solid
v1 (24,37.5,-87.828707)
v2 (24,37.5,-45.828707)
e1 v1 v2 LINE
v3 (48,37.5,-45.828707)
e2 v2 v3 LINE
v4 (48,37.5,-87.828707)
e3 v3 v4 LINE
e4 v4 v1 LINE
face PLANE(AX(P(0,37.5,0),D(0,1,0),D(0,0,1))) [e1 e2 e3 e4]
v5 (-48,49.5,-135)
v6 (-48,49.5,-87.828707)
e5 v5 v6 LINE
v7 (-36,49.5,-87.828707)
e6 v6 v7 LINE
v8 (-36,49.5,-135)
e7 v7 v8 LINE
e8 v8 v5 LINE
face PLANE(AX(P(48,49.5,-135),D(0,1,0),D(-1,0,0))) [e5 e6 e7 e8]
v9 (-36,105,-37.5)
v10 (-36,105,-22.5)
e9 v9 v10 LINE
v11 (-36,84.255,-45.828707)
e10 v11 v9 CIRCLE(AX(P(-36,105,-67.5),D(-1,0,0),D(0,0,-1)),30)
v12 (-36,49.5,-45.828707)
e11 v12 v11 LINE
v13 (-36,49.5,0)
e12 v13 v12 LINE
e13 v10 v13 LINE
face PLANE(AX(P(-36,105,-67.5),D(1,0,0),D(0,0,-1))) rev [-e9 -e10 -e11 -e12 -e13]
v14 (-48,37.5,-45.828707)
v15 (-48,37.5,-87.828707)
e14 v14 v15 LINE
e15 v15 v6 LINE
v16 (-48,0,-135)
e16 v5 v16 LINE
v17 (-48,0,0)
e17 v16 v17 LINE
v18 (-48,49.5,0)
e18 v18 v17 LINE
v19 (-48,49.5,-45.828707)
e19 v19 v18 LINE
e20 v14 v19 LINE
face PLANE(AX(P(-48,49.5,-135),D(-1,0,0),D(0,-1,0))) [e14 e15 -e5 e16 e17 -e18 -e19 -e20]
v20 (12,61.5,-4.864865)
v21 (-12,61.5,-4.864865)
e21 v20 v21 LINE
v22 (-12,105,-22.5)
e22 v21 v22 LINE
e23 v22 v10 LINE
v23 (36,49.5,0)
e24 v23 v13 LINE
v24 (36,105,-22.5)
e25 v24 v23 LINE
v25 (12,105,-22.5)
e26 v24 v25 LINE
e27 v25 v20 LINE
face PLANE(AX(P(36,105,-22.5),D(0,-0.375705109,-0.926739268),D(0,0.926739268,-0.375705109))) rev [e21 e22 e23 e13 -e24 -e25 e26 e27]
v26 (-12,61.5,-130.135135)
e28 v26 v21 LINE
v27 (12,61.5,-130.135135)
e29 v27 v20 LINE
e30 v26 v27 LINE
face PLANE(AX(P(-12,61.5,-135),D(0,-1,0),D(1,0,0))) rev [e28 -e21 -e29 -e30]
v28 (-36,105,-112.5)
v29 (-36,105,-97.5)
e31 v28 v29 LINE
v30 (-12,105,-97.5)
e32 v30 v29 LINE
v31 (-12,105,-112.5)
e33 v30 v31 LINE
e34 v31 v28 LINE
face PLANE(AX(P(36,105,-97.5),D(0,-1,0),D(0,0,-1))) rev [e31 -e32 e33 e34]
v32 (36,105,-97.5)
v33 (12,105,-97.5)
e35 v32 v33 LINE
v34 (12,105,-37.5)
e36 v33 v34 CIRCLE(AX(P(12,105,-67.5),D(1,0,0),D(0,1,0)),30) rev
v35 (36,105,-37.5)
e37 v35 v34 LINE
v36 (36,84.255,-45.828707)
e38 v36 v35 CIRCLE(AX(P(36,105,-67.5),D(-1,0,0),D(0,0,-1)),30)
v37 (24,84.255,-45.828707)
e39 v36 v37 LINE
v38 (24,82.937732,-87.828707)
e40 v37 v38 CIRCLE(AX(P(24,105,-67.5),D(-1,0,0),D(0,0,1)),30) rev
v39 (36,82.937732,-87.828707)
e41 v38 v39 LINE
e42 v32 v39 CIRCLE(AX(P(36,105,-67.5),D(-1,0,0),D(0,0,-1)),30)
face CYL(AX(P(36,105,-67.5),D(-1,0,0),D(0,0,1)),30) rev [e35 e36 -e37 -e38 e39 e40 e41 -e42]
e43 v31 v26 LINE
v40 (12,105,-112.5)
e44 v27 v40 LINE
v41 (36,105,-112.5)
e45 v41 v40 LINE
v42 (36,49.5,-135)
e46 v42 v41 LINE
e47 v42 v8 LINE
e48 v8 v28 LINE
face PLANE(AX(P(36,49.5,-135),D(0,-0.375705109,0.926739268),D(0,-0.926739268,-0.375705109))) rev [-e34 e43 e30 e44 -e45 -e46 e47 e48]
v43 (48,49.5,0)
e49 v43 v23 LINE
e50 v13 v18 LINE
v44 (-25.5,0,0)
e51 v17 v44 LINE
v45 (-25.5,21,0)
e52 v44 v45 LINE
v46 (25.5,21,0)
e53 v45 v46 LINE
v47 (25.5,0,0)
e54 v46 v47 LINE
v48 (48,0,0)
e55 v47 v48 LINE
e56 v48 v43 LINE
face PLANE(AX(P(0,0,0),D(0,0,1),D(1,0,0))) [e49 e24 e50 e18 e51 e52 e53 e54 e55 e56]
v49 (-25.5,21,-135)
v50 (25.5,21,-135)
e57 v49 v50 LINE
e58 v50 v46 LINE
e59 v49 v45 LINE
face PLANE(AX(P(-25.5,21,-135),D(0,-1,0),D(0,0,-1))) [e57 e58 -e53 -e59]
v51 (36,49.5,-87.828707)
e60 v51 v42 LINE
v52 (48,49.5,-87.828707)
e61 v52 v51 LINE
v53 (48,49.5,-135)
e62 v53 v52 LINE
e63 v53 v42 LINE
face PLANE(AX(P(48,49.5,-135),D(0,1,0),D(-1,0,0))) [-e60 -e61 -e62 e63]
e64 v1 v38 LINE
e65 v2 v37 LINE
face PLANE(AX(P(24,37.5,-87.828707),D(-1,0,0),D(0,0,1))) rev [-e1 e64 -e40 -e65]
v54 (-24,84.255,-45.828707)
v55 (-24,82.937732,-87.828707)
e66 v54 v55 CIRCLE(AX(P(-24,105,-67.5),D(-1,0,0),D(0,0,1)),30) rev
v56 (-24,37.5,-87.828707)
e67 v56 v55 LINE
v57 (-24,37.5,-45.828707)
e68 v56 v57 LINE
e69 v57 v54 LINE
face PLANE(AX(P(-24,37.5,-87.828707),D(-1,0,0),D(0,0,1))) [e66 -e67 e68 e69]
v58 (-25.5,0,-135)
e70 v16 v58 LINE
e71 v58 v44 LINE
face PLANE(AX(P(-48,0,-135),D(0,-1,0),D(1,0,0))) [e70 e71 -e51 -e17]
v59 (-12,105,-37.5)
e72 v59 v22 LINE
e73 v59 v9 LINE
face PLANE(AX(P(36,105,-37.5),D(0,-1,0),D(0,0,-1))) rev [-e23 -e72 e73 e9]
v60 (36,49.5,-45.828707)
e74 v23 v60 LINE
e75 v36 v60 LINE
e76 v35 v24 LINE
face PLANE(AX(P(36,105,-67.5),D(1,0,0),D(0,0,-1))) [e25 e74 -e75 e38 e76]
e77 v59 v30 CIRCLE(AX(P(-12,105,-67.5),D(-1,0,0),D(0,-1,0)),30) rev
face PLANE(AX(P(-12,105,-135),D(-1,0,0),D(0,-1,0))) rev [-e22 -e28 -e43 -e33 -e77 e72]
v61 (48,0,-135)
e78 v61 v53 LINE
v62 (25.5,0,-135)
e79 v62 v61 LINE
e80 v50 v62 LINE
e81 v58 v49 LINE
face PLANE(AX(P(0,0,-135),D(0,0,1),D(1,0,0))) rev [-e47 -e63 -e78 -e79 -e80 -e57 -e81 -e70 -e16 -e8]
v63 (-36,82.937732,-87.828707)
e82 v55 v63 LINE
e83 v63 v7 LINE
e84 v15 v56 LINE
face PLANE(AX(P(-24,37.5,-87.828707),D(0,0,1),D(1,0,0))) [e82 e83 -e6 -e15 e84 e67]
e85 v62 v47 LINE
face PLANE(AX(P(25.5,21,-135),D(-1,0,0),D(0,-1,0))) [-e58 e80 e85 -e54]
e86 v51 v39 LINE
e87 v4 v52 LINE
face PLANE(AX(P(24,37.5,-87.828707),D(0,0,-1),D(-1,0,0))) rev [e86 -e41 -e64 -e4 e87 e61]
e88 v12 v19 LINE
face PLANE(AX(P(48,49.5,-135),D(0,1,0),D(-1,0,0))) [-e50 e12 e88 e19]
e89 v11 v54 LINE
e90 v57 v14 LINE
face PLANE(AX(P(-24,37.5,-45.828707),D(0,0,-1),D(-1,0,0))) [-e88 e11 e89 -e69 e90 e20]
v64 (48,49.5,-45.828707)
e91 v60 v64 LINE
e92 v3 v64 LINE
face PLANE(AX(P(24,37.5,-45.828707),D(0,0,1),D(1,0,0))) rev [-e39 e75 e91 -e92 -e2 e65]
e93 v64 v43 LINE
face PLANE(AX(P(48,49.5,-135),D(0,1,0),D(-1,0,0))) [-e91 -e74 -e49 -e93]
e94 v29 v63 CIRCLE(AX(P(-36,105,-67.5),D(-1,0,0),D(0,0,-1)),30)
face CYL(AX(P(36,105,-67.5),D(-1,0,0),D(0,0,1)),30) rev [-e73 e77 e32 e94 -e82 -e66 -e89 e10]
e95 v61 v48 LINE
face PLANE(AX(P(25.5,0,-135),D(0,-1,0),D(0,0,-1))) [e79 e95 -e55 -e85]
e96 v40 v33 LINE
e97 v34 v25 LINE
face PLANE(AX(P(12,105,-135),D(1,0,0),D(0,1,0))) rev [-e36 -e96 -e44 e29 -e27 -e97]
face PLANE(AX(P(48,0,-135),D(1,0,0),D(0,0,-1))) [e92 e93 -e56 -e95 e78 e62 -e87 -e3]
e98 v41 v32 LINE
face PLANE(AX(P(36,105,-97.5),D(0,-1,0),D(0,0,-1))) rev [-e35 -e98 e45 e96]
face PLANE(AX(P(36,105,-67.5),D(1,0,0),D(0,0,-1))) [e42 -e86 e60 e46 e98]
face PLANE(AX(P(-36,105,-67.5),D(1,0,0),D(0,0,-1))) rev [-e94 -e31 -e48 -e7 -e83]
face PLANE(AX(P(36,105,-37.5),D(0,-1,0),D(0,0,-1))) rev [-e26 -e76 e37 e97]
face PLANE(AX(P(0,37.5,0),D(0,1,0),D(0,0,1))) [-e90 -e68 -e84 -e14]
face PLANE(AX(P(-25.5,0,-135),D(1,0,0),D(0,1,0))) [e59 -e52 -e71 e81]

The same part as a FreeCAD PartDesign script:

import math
import FreeCAD as App
import Part
import Sketcher
from FreeCAD import Vector


def add_polygon(sketch, points):
    """Adds a closed chain of lines whose ends are joined by coincident constraints."""
    first, n = sketch.GeometryCount, len(points)
    for a, b in zip(points, points[1:] + points[:1]):
        sketch.addGeometry(Part.LineSegment(App.Vector(*a, 0), App.Vector(*b, 0)), False)
    for i in range(n):
        sketch.addConstraint(Sketcher.Constraint("Coincident", first + i, 2, first + (i + 1) % n, 1))

doc = App.newDocument("Part")
params = doc.addObject("Spreadsheet::Sheet", "Params")
for row, (alias, value) in enumerate([
    ("sketch1_width", "51 mm"),
    ("sketch1_width2", "96 mm"),
    ("sketch1_height", "21 mm"),
    ("sketch1_height2", "49.5 mm"),
    ("pad1_length", "135 mm"),
    ("sketch2_radius", "30 mm"),
    ("sketch2_height", "15 mm"),
    ("sketch2_height2", "135 mm"),
    ("pad2_length", "36 mm"),
    ("pad2_length2", "36 mm"),
    ("sketch3_width", "24 mm"),
    ("sketch3_height", "43.5 mm"),
    ("sketch4_width", "24 mm"),
    ("sketch4_height", "42 mm"),
    ("pocket2_length", "67.5 mm"),
], start=1):
    params.set(f"A{row}", alias)
    params.set(f"B{row}", "=" + value)
    params.setAlias(f"B{row}", alias)

body = doc.addObject("PartDesign::Body", "Body")

sketch1 = doc.addObject("Sketcher::SketchObject", "Sketch")
body.addObject(sketch1)
sketch1.AttachmentSupport = (doc.XY_Plane, [""])
sketch1.MapMode = "FlatFace"
add_polygon(sketch1, [(-48, 50), (-48, 0), (-26, 0), (-26, 21), (26, 21), (26, 0), (48, 0), (48, 50)])
sketch1.addConstraint(Sketcher.Constraint("Vertical", 0))
sketch1.addConstraint(Sketcher.Constraint("Horizontal", 1))
sketch1.addConstraint(Sketcher.Constraint("Vertical", 2))
sketch1.addConstraint(Sketcher.Constraint("Horizontal", 3))
sketch1.addConstraint(Sketcher.Constraint("Vertical", 4))
sketch1.addConstraint(Sketcher.Constraint("Horizontal", 5))
sketch1.addConstraint(Sketcher.Constraint("Vertical", 6))
sketch1.addConstraint(Sketcher.Constraint("Horizontal", 7))
sketch1.addConstraint(Sketcher.Constraint("Symmetric", 1, 2, 4, 2, -1, 1))
sketch1.addConstraint(Sketcher.Constraint("Symmetric", 0, 2, 5, 2, -2))
sketch1.addConstraint(Sketcher.Constraint("DistanceX", 3, 1, 3, 2, 51.0))
sketch1.addConstraint(Sketcher.Constraint("DistanceX", 7, 2, 7, 1, 96.0))
sketch1.addConstraint(Sketcher.Constraint("DistanceY", 2, 1, 2, 2, 21.0))
sketch1.addConstraint(Sketcher.Constraint("DistanceY", 0, 2, 0, 1, 49.5))
sketch1.setExpression("Constraints[18]", "Params.sketch1_width")
sketch1.setExpression("Constraints[19]", "Params.sketch1_width2")
sketch1.setExpression("Constraints[20]", "Params.sketch1_height")
sketch1.setExpression("Constraints[21]", "Params.sketch1_height2")
pad1 = doc.addObject("PartDesign::Pad", "Pad")
body.addObject(pad1)
pad1.Profile = sketch1
pad1.setExpression("Length", "Params.pad1_length")
pad1.Reversed = True

sketch2 = doc.addObject("Sketcher::SketchObject", "Sketch001")
body.addObject(sketch2)
sketch2.AttachmentSupport = (doc.YZ_Plane, [""])
sketch2.MapMode = "FlatFace"
sketch2.addGeometry(Part.LineSegment(Vector(105, -38, 0), Vector(105, -22, 0)), False)
sketch2.addGeometry(Part.LineSegment(Vector(105, -22, 0), Vector(50, 0, 0)), False)
sketch2.addGeometry(Part.LineSegment(Vector(50, 0, 0), Vector(50, -135, 0)), False)
sketch2.addGeometry(Part.LineSegment(Vector(50, -135, 0), Vector(105, -112, 0)), False)
sketch2.addGeometry(Part.LineSegment(Vector(105, -112, 0), Vector(105, -98, 0)), False)
sketch2.addGeometry(Part.ArcOfCircle(Part.Circle(Vector(105, -68, 0), Vector(0, 0, 1), 30), math.radians(90), math.radians(270)), False)
sketch2.addConstraint(Sketcher.Constraint("Coincident", 0, 2, 1, 1))
sketch2.addConstraint(Sketcher.Constraint("Coincident", 1, 2, 2, 1))
sketch2.addConstraint(Sketcher.Constraint("Coincident", 2, 2, 3, 1))
sketch2.addConstraint(Sketcher.Constraint("Coincident", 3, 2, 4, 1))
sketch2.addConstraint(Sketcher.Constraint("Coincident", 4, 2, 5, 2))
sketch2.addConstraint(Sketcher.Constraint("Coincident", 5, 1, 0, 1))
sketch2.addConstraint(Sketcher.Constraint("Vertical", 0))
sketch2.addConstraint(Sketcher.Constraint("Vertical", 2))
sketch2.addConstraint(Sketcher.Constraint("Vertical", 4))
sketch2.addConstraint(Sketcher.Constraint("PointOnObject", 1, 2, -1))
sketch2.addConstraint(Sketcher.Constraint("Vertical", 5, 3, 0, 2))
sketch2.addConstraint(Sketcher.Constraint("Vertical", 0, 2, 3, 2))
sketch2.addConstraint(Sketcher.Constraint("Equal", 0, 4))
sketch2.addConstraint(Sketcher.Constraint("Equal", 1, 3))
sketch2.addConstraint(Sketcher.Constraint("Radius", 5, 30.0))
sketch2.addConstraint(Sketcher.Constraint("DistanceY", 0, 1, 0, 2, 15.0))
sketch2.addConstraint(Sketcher.Constraint("DistanceY", 2, 2, 2, 1, 135.0))
sketch2.addConstraint(Sketcher.Constraint("DistanceX", -1, 1, 5, 3, 105.0))
sketch2.addConstraint(Sketcher.Constraint("DistanceX", -1, 1, 1, 2, 49.5))
sketch2.setExpression("Constraints[14]", "Params.sketch2_radius")
sketch2.setExpression("Constraints[15]", "Params.sketch2_height")
sketch2.setExpression("Constraints[16]", "Params.sketch2_height2")
pad2 = doc.addObject("PartDesign::Pad", "Pad001")
body.addObject(pad2)
pad2.Profile = sketch2
pad2.Type = "TwoLengths"
pad2.setExpression("Length", "Params.pad2_length")
pad2.setExpression("Length2", "Params.pad2_length2")

sketch3 = doc.addObject("Sketcher::SketchObject", "Sketch002")
body.addObject(sketch3)
sketch3.AttachmentSupport = (doc.XY_Plane, [""])
sketch3.MapMode = "FlatFace"
add_polygon(sketch3, [(-12, 105), (-12, 62), (12, 62), (12, 105)])
sketch3.addConstraint(Sketcher.Constraint("Vertical", 0))
sketch3.addConstraint(Sketcher.Constraint("Horizontal", 1))
sketch3.addConstraint(Sketcher.Constraint("Vertical", 2))
sketch3.addConstraint(Sketcher.Constraint("Horizontal", 3))
sketch3.addConstraint(Sketcher.Constraint("DistanceX", 1, 1, 1, 2, 24.0))
sketch3.addConstraint(Sketcher.Constraint("DistanceY", 0, 2, 0, 1, 43.5))
sketch3.addConstraint(Sketcher.Constraint("DistanceX", 0, 2, -1, 1, 12.0))
sketch3.addConstraint(Sketcher.Constraint("DistanceY", -1, 1, 2, 2, 105.0))
sketch3.setExpression("Constraints[8]", "Params.sketch3_width")
sketch3.setExpression("Constraints[9]", "Params.sketch3_height")
pocket1 = doc.addObject("PartDesign::Pocket", "Pocket")
body.addObject(pocket1)
pocket1.Profile = sketch3
pocket1.Type = "ThroughAll"

sketch4 = doc.addObject("Sketcher::SketchObject", "Sketch003")
body.addObject(sketch4)
sketch4.AttachmentSupport = (doc.XZ_Plane, [""])
sketch4.MapMode = "FlatFace"
sketch4.AttachmentOffset = App.Placement(Vector(0, 0, -105), App.Rotation())
add_polygon(sketch4, [(24, -88), (24, -46), (48, -46), (48, -88)])
sketch4.addConstraint(Sketcher.Constraint("Vertical", 0))
sketch4.addConstraint(Sketcher.Constraint("Horizontal", 1))
sketch4.addConstraint(Sketcher.Constraint("Vertical", 2))
sketch4.addConstraint(Sketcher.Constraint("Horizontal", 3))
sketch4.addConstraint(Sketcher.Constraint("DistanceX", 1, 1, 1, 2, 24.0))
sketch4.addConstraint(Sketcher.Constraint("DistanceY", 0, 1, 0, 2, 42.0))
sketch4.addConstraint(Sketcher.Constraint("DistanceX", -1, 1, 0, 2, 24.0))
sketch4.addConstraint(Sketcher.Constraint("DistanceY", 0, 2, -1, 1, 45.828707))
sketch4.setExpression("Constraints[8]", "Params.sketch4_width")
sketch4.setExpression("Constraints[9]", "Params.sketch4_height")
pocket2 = doc.addObject("PartDesign::Pocket", "Pocket001")
body.addObject(pocket2)
pocket2.Profile = sketch4
pocket2.setExpression("Length", "Params.pocket2_length")
pocket2.Reversed = True
doc.recompute()

mirrored = doc.addObject("PartDesign::Mirrored", "Mirrored")
body.addObject(mirrored)
mirrored.Originals = [pocket2]
mirrored.MirrorPlane = (doc.YZ_Plane, [""])
body.Tip = mirrored

doc.recompute()
